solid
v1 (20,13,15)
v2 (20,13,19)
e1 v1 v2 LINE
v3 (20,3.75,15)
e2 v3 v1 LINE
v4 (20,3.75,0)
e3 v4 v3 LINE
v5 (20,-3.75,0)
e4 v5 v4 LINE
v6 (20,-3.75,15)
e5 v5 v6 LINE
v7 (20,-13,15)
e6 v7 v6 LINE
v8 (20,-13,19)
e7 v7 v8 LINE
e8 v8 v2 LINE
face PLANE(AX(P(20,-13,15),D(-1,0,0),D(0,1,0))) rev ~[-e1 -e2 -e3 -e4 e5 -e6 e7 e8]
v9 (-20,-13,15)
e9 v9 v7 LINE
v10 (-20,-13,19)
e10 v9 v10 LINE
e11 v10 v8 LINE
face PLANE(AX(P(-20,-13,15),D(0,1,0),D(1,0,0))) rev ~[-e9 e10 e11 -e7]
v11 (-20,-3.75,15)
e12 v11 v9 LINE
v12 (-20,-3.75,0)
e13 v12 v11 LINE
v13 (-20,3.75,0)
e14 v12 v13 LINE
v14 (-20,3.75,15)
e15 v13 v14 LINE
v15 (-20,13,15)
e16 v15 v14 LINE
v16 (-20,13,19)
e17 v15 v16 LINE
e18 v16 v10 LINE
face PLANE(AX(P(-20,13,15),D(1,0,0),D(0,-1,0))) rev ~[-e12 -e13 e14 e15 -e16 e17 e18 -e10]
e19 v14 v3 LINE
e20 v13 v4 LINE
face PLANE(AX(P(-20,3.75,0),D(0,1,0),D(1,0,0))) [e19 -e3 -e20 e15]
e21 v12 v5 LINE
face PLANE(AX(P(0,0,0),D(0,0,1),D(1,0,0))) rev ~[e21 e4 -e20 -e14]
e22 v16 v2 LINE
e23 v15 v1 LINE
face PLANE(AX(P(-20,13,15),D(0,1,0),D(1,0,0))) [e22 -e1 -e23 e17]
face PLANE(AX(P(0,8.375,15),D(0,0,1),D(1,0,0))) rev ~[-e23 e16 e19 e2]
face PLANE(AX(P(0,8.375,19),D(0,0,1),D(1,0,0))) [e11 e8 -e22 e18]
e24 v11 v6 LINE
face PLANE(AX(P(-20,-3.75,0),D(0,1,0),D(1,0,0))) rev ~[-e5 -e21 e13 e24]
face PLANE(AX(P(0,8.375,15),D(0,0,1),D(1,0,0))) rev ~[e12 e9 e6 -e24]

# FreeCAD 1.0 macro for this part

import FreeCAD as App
import Part
import Sketcher
from FreeCAD import Vector

doc = App.newDocument("Part")
body = doc.addObject("PartDesign::Body", "Body")

# Sketch on XY plane
sketch1 = body.newObject("Sketcher::SketchObject", "Sketch")
sketch1.AttachmentSupport = (doc.getObject("XY_Plane"), [""])
sketch1.MapMode = "FlatFace"
sketch1.addGeometry(Part.LineSegment(Vector(-20, 4, 0), Vector(-20, -4, 0)), False)
sketch1.addGeometry(Part.LineSegment(Vector(-20, -4, 0), Vector(20, -4, 0)), False)
sketch1.addGeometry(Part.LineSegment(Vector(20, -4, 0), Vector(20, 4, 0)), False)
sketch1.addGeometry(Part.LineSegment(Vector(20, 4, 0), Vector(-20, 4, 0)), False)
sketch1.addConstraint(Sketcher.Constraint("Coincident", 0, 2, 1, 1))
sketch1.addConstraint(Sketcher.Constraint("Coincident", 1, 2, 2, 1))
sketch1.addConstraint(Sketcher.Constraint("Coincident", 2, 2, 3, 1))
sketch1.addConstraint(Sketcher.Constraint("Coincident", 3, 2, 0, 1))
sketch1.addConstraint(Sketcher.Constraint("Vertical", 0))
sketch1.addConstraint(Sketcher.Constraint("Horizontal", 1))
sketch1.addConstraint(Sketcher.Constraint("Vertical", 2))
sketch1.addConstraint(Sketcher.Constraint("Horizontal", 3))
sketch1.addConstraint(Sketcher.Constraint("Symmetric", 0, 2, 2, 2, -1, 1))
sketch1.addConstraint(Sketcher.Constraint("DistanceX", 1, 1, 1, 2, 40.0))
sketch1.addConstraint(Sketcher.Constraint("DistanceY", 0, 2, 0, 1, 7.5))
pad1 = body.newObject("PartDesign::Pad", "Pad")
pad1.Profile = sketch1
pad1.Length = 15

# Sketch on XY plane
sketch2 = body.newObject("Sketcher::SketchObject", "Sketch001")
sketch2.AttachmentSupport = (doc.getObject("XY_Plane"), [""])
sketch2.MapMode = "FlatFace"
sketch2.AttachmentOffset = App.Placement(Vector(0, 0, 15), App.Rotation())
sketch2.addGeometry(Part.LineSegment(Vector(-20, 13, 0), Vector(-20, -13, 0)), False)
sketch2.addGeometry(Part.LineSegment(Vector(-20, -13, 0), Vector(20, -13, 0)), False)
sketch2.addGeometry(Part.LineSegment(Vector(20, -13, 0), Vector(20, 13, 0)), False)
sketch2.addGeometry(Part.LineSegment(Vector(20, 13, 0), Vector(-20, 13, 0)), False)
sketch2.addConstraint(Sketcher.Constraint("Coincident", 0, 2, 1, 1))
sketch2.addConstraint(Sketcher.Constraint("Coincident", 1, 2, 2, 1))
sketch2.addConstraint(Sketcher.Constraint("Coincident", 2, 2, 3, 1))
sketch2.addConstraint(Sketcher.Constraint("Coincident", 3, 2, 0, 1))
sketch2.addConstraint(Sketcher.Constraint("Vertical", 0))
sketch2.addConstraint(Sketcher.Constraint("Horizontal", 1))
sketch2.addConstraint(Sketcher.Constraint("Vertical", 2))
sketch2.addConstraint(Sketcher.Constraint("Horizontal", 3))
sketch2.addConstraint(Sketcher.Constraint("Symmetric", 0, 2, 2, 2, -1, 1))
sketch2.addConstraint(Sketcher.Constraint("DistanceX", 1, 1, 1, 2, 40.0))
sketch2.addConstraint(Sketcher.Constraint("DistanceY", 0, 2, 0, 1, 26.0))
pad2 = body.newObject("PartDesign::Pad", "Pad001")
pad2.Profile = sketch2
pad2.Length = 4

doc.recompute()
